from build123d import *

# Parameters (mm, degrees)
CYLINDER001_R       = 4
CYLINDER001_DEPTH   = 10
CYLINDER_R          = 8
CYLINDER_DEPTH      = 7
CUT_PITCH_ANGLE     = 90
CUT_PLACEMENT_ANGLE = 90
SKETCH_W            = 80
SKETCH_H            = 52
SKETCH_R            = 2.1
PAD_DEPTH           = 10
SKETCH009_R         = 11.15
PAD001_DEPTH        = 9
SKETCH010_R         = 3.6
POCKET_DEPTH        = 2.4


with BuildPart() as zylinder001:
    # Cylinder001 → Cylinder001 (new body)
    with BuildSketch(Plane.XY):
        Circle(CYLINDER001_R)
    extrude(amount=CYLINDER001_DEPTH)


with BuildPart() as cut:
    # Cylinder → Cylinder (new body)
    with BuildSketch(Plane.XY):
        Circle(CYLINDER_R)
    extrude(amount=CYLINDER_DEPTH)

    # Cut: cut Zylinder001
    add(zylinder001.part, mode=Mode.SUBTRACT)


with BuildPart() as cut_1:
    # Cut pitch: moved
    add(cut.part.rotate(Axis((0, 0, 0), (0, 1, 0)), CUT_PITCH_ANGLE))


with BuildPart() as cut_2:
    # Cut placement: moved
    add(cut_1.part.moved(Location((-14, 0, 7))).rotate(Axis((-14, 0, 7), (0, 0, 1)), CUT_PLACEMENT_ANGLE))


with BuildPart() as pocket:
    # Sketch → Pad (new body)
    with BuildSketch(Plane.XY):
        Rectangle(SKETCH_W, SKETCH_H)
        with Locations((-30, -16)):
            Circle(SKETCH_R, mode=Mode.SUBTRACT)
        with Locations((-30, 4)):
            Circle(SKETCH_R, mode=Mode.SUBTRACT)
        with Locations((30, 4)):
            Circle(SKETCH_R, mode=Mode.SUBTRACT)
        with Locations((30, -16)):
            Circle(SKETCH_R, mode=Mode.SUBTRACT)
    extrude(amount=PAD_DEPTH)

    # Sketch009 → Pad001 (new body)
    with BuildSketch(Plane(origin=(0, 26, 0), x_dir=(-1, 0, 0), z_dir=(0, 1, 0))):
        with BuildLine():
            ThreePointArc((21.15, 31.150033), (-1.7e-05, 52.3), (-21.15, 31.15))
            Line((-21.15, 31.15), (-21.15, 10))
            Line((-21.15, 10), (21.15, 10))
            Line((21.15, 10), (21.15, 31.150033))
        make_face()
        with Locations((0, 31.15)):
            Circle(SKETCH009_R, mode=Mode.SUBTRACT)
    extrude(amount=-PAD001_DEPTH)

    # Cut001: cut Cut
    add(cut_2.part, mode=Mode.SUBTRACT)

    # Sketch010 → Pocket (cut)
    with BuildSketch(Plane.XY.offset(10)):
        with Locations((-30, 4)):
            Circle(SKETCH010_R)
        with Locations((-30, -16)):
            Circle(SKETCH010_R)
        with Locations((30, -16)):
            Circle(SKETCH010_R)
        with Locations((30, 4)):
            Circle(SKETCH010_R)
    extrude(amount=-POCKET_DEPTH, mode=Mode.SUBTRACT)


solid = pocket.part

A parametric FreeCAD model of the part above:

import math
import FreeCAD as App
import Part
import Sketcher
Q = App.Units.Quantity

doc = App.newDocument("Part")
body = doc.addObject("PartDesign::Body", "Body")

# Sketch on XY plane
sketch1 = body.newObject("Sketcher::SketchObject", "Sketch")
sketch1.AttachmentSupport = (doc.getObject("XY_Plane"), [""])
sketch1.MapMode = "FlatFace"
sketch1.addGeometry(Part.Circle(App.Vector(0, 0, 0), App.Vector(0, 0, 1), 4), False)
sketch1.addConstraint(Sketcher.Constraint("Coincident", 0, 3, -1, 1))
sketch1.addConstraint(Sketcher.Constraint("Diameter", 0, Q("8 mm")))
pad1 = body.newObject("PartDesign::Pad", "Pad")
pad1.Profile = sketch1
pad1.Length = 10
body2 = doc.addObject("PartDesign::Body", "Body001")

# Sketch on XY plane
sketch2 = body2.newObject("Sketcher::SketchObject", "Sketch001")
sketch2.AttachmentSupport = (doc.getObject("XY_Plane001"), [""])
sketch2.MapMode = "FlatFace"
sketch2.addGeometry(Part.Circle(App.Vector(0, 0, 0), App.Vector(0, 0, 1), 8), False)
sketch2.addConstraint(Sketcher.Constraint("Coincident", 0, 3, -1, 1))
sketch2.addConstraint(Sketcher.Constraint("Diameter", 0, Q("16 mm")))
pad2 = body2.newObject("PartDesign::Pad", "Pad001")
pad2.Profile = sketch2
pad2.Length = 7
doc.recompute()

boolean = body2.newObject("PartDesign::Boolean", "Boolean")
boolean.Type = "Cut"
boolean.addObjects([body])
body3 = doc.addObject("PartDesign::Body", "Body002")
doc.recompute()

body2.Placement = App.Placement(App.Vector(0, 0, 0), App.Rotation(App.Vector(0, 1, 0), 90))
boolean2 = body3.newObject("PartDesign::Boolean", "Boolean001")
boolean2.Type = "Fuse"
boolean2.addObjects([body2])
body4 = doc.addObject("PartDesign::Body", "Body003")
doc.recompute()

body3.Placement = App.Placement(App.Vector(-14, 0, 7), App.Rotation(App.Vector(0, 0, 1), 90))
boolean3 = body4.newObject("PartDesign::Boolean", "Boolean002")
boolean3.Type = "Fuse"
boolean3.addObjects([body3])
body5 = doc.addObject("PartDesign::Body", "Body004")

# Sketch on XY plane
sketch3 = body5.newObject("Sketcher::SketchObject", "Sketch002")
sketch3.AttachmentSupport = (doc.getObject("XY_Plane004"), [""])
sketch3.MapMode = "FlatFace"
sketch3.addGeometry(Part.LineSegment(App.Vector(-40, 26, 0), App.Vector(-40, -26, 0)), False)
sketch3.addGeometry(Part.LineSegment(App.Vector(-40, -26, 0), App.Vector(40, -26, 0)), False)
sketch3.addGeometry(Part.LineSegment(App.Vector(40, -26, 0), App.Vector(40, 26, 0)), False)
sketch3.addGeometry(Part.LineSegment(App.Vector(40, 26, 0), App.Vector(-40, 26, 0)), False)
sketch3.addGeometry(Part.Circle(App.Vector(-30, -16, 0), App.Vector(0, 0, 1), 2.1), False)
sketch3.addGeometry(Part.Circle(App.Vector(30, -16, 0), App.Vector(0, 0, 1), 2.1), False)
sketch3.addGeometry(Part.Circle(App.Vector(-30, 4, 0), App.Vector(0, 0, 1), 2.1), False)
sketch3.addGeometry(Part.Circle(App.Vector(30, 4, 0), App.Vector(0, 0, 1), 2.1), False)
sketch3.addConstraint(Sketcher.Constraint("Coincident", 0, 2, 1, 1))
sketch3.addConstraint(Sketcher.Constraint("Coincident", 1, 2, 2, 1))
sketch3.addConstraint(Sketcher.Constraint("Coincident", 2, 2, 3, 1))
sketch3.addConstraint(Sketcher.Constraint("Coincident", 3, 2, 0, 1))
sketch3.addConstraint(Sketcher.Constraint("Vertical", 0))
sketch3.addConstraint(Sketcher.Constraint("Horizontal", 1))
sketch3.addConstraint(Sketcher.Constraint("Vertical", 2))
sketch3.addConstraint(Sketcher.Constraint("Horizontal", 3))
sketch3.addConstraint(Sketcher.Constraint("Equal", 4, 5))
sketch3.addConstraint(Sketcher.Constraint("Equal", 5, 6))
sketch3.addConstraint(Sketcher.Constraint("Equal", 6, 7))
sketch3.addConstraint(Sketcher.Constraint("Symmetric", 0, 2, 2, 2, -1, 1))
sketch3.addConstraint(Sketcher.Constraint("Symmetric", 4, 3, 5, 3, -2))
sketch3.addConstraint(Sketcher.Constraint("Symmetric", 6, 3, 7, 3, -2))
sketch3.addConstraint(Sketcher.Constraint("Vertical", 4, 3, 6, 3))
sketch3.addConstraint(Sketcher.Constraint("Diameter", 4, Q("4.2 mm")))
sketch3.addConstraint(Sketcher.Constraint("DistanceX", 1, 1, 1, 2, Q("80 mm")))
sketch3.addConstraint(Sketcher.Constraint("DistanceY", 0, 2, 0, 1, Q("52 mm")))
sketch3.addConstraint(Sketcher.Constraint("DistanceX", 4, 3, -1, 1, Q("30 mm")))
sketch3.addConstraint(Sketcher.Constraint("DistanceY", 4, 3, -1, 1, Q("16 mm")))
sketch3.addConstraint(Sketcher.Constraint("DistanceY", -1, 1, 6, 3, Q("4 mm")))
pad3 = body5.newObject("PartDesign::Pad", "Pad002")
pad3.Profile = sketch3
pad3.Length = 10

# Sketch on XZ plane
sketch4 = body5.newObject("Sketcher::SketchObject", "Sketch003")
sketch4.AttachmentSupport = (doc.getObject("XZ_Plane004"), [""])
sketch4.MapMode = "FlatFace"
sketch4.AttachmentOffset = App.Placement(App.Vector(0, 0, -26), App.Rotation())
sketch4.addGeometry(Part.ArcOfCircle(Part.Circle(App.Vector(0, 31.15, 0), App.Vector(0, 0, 1), 21.15), math.radians(0), math.radians(179.999911)), False)
sketch4.addGeometry(Part.LineSegment(App.Vector(21.15, 31.15, 0), App.Vector(21.15, 10, 0)), False)
sketch4.addGeometry(Part.LineSegment(App.Vector(21.15, 10, 0), App.Vector(-21.15, 10, 0)), False)
sketch4.addGeometry(Part.LineSegment(App.Vector(-21.15, 10, 0), App.Vector(-21.15, 31.150033, 0)), False)
sketch4.addGeometry(Part.Circle(App.Vector(0, 31.15, 0), App.Vector(0, 0, 1), 11.15), False)
sketch4.addConstraint(Sketcher.Constraint("Coincident", 0, 1, 1, 1))
sketch4.addConstraint(Sketcher.Constraint("Coincident", 1, 2, 2, 1))
sketch4.addConstraint(Sketcher.Constraint("Coincident", 2, 2, 3, 1))
sketch4.addConstraint(Sketcher.Constraint("Coincident", 3, 2, 0, 2))
sketch4.addConstraint(Sketcher.Constraint("Vertical", 1))
sketch4.addConstraint(Sketcher.Constraint("Horizontal", 2))
sketch4.addConstraint(Sketcher.Constraint("Vertical", 3))
sketch4.addConstraint(Sketcher.Constraint("Coincident", 4, 3, 0, 3))
sketch4.addConstraint(Sketcher.Constraint("PointOnObject", 0, 3, -2))
sketch4.addConstraint(Sketcher.Constraint("Diameter", 4, Q("22.3 mm")))
sketch4.addConstraint(Sketcher.Constraint("Radius", 0, Q("21.15 mm")))
sketch4.addConstraint(Sketcher.Constraint("DistanceY", -1, 1, 1, 2, Q("10 mm")))
sketch4.addConstraint(Sketcher.Constraint("DistanceY", 1, 2, 1, 1, Q("21.15 mm")))
sketch4.addConstraint(Sketcher.Constraint("DistanceY", -1, 1, 0, 3, Q("31.15 mm")))
sketch4.addConstraint(Sketcher.Constraint("DistanceY", 3, 1, 3, 2, Q("21.150033 mm")))
pad4 = body5.newObject("PartDesign::Pad", "Pad003")
pad4.Profile = sketch4
pad4.Length = 9
doc.recompute()

boolean4 = body5.newObject("PartDesign::Boolean", "Boolean003")
boolean4.Type = "Cut"
boolean4.addObjects([body4])

# Sketch on XY plane
sketch5 = body5.newObject("Sketcher::SketchObject", "Sketch004")
sketch5.AttachmentSupport = (doc.getObject("XY_Plane004"), [""])
sketch5.MapMode = "FlatFace"
sketch5.AttachmentOffset = App.Placement(App.Vector(0, 0, 10), App.Rotation())
sketch5.addGeometry(Part.Circle(App.Vector(-30, 4, 0), App.Vector(0, 0, 1), 3.6), False)
sketch5.addGeometry(Part.Circle(App.Vector(-30, -16, 0), App.Vector(0, 0, 1), 3.6), False)
sketch5.addGeometry(Part.Circle(App.Vector(30, -16, 0), App.Vector(0, 0, 1), 3.6), False)
sketch5.addGeometry(Part.Circle(App.Vector(30, 4, 0), App.Vector(0, 0, 1), 3.6), False)
sketch5.addConstraint(Sketcher.Constraint("Equal", 0, 1))
sketch5.addConstraint(Sketcher.Constraint("Equal", 1, 2))
sketch5.addConstraint(Sketcher.Constraint("Equal", 2, 3))
sketch5.addConstraint(Sketcher.Constraint("Symmetric", 1, 3, 2, 3, -2))
sketch5.addConstraint(Sketcher.Constraint("Symmetric", 0, 3, 3, 3, -2))
sketch5.addConstraint(Sketcher.Constraint("Vertical", 0, 3, 1, 3))
sketch5.addConstraint(Sketcher.Constraint("Diameter", 0, Q("7.2 mm")))
sketch5.addConstraint(Sketcher.Constraint("DistanceX", 0, 3, -1, 1, Q("30 mm")))
sketch5.addConstraint(Sketcher.Constraint("DistanceY", -1, 1, 0, 3, Q("4 mm")))
sketch5.addConstraint(Sketcher.Constraint("DistanceY", 1, 3, -1, 1, Q("16 mm")))
pocket1 = body5.newObject("PartDesign::Pocket", "Pocket")
pocket1.Profile = sketch5
pocket1.Length = 2.4

doc.recompute()
